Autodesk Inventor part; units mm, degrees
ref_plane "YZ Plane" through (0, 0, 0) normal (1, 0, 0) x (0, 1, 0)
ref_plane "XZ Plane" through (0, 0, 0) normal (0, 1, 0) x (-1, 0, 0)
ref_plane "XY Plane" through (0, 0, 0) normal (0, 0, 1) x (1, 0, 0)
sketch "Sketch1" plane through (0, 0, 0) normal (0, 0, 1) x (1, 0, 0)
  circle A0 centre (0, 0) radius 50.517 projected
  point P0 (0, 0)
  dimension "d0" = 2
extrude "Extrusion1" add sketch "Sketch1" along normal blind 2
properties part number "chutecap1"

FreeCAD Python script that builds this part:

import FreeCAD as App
import Part
import Sketcher

doc = App.newDocument("Part")
body = doc.addObject("PartDesign::Body", "Body")

# Sketch on XY plane
sketch1 = doc.addObject("Sketcher::SketchObject", "Sketch")
body.addObject(sketch1)
sketch1.AttachmentSupport = (doc.XY_Plane, [""])
sketch1.MapMode = "FlatFace"
sketch1.addGeometry(Part.Circle(App.Vector(0, 0, 0), App.Vector(0, 0, 1), 51), False)
sketch1.addConstraint([
    Sketcher.Constraint("Coincident", 0, 3, -1, 1),
    Sketcher.Constraint("Diameter", 0, 101.034),
])
pad1 = doc.addObject("PartDesign::Pad", "Pad")
body.addObject(pad1)
pad1.Profile = sketch1
pad1.Length = 2

doc.recompute()
